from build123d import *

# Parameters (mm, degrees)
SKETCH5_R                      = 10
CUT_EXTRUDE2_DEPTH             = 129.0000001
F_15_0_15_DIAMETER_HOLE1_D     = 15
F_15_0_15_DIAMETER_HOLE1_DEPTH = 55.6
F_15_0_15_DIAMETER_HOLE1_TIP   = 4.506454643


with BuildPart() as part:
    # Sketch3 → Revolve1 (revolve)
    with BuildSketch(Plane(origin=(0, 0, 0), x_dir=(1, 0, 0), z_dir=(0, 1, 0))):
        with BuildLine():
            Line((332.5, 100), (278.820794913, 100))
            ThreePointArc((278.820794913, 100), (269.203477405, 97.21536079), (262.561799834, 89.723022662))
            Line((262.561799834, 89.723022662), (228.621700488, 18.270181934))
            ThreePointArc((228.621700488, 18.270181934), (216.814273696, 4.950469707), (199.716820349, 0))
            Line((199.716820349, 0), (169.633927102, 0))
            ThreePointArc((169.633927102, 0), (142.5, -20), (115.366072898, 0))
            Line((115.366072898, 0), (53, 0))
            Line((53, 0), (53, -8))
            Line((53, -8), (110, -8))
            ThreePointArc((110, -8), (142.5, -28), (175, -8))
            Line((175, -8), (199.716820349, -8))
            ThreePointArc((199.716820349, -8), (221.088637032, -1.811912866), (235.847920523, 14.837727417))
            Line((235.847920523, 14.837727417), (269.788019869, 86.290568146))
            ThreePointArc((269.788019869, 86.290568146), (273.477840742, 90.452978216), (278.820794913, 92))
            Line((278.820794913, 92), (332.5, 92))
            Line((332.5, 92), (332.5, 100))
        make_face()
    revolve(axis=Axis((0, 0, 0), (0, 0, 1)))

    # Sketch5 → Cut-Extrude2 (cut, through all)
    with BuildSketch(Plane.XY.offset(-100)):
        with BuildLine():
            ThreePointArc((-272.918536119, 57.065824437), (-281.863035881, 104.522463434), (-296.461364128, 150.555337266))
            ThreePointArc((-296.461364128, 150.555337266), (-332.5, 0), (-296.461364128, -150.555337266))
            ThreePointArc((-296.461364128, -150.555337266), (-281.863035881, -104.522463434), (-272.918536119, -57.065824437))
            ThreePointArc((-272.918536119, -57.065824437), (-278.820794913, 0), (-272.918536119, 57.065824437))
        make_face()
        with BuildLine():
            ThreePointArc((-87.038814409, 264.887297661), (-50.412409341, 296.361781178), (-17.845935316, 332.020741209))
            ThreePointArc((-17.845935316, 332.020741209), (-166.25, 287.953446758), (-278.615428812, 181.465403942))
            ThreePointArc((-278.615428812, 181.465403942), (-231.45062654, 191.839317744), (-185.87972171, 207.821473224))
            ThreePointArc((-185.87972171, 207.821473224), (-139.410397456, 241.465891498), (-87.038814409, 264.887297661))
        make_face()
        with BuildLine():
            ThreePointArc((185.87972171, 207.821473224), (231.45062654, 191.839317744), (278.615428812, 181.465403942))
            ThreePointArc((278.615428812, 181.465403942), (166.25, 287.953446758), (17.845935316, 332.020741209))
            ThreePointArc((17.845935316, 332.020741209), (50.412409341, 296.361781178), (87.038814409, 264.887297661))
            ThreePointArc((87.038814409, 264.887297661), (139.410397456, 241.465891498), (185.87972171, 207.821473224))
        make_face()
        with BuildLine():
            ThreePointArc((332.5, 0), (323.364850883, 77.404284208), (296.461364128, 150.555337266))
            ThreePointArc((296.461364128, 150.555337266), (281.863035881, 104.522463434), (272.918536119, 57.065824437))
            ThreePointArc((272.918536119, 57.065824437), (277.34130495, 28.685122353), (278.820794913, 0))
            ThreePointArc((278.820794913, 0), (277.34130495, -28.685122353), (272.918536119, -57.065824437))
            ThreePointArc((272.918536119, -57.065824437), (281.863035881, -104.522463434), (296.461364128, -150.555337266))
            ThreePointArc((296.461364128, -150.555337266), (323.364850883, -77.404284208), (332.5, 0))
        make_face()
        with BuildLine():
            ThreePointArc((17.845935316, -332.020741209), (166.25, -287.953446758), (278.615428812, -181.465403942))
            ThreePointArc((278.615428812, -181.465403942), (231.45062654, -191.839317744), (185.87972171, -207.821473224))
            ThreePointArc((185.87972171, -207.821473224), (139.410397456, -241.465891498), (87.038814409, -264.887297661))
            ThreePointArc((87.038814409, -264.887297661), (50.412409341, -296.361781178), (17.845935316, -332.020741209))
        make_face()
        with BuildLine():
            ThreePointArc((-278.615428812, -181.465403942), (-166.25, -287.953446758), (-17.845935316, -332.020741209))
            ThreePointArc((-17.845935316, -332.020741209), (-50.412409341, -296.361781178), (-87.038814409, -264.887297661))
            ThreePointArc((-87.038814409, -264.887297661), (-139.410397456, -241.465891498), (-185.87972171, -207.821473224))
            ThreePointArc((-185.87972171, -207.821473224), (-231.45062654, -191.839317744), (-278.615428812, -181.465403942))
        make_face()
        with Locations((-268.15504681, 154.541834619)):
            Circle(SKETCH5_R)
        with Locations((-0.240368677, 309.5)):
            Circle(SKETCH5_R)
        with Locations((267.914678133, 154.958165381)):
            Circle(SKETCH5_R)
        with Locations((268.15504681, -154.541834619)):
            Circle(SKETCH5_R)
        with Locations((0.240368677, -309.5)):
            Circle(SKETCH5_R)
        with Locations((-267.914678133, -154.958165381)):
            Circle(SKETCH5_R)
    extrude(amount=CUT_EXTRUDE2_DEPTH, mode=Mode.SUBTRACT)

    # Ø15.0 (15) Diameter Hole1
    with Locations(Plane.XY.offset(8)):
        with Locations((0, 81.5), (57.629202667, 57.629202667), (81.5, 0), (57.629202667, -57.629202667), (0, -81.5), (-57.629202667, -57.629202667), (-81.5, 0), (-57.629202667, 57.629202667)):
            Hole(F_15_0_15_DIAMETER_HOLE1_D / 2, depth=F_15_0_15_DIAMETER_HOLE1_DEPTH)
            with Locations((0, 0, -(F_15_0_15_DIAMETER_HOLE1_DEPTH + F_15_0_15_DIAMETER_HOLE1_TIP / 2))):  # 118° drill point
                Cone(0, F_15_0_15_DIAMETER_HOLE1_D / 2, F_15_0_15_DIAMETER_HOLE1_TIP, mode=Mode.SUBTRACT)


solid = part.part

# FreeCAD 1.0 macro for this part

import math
import FreeCAD as App
import Part
import Sketcher

V = App.Vector

doc = App.newDocument("Part")
body = doc.addObject("PartDesign::Body", "Body")

sketch1 = doc.addObject("Sketcher::SketchObject", "Sketch")
body.addObject(sketch1)
sketch1.AttachmentSupport = (doc.XZ_Plane, [""])
sketch1.MapMode = "FlatFace"
sketch1.addGeometry(Part.LineSegment(V(332, -100, 0), V(279, -100, 0)), False)
sketch1.addGeometry(Part.ArcOfCircle(Part.Circle(V(279, -82, 0), V(0, 0, 1), 18), math.radians(-155), math.radians(-90)), False)
sketch1.addGeometry(Part.LineSegment(V(263, -90, 0), V(229, -18, 0)), False)
sketch1.addGeometry(Part.ArcOfCircle(Part.Circle(V(200, -32, 0), V(0, 0, 1), 32), math.radians(25), math.radians(90)), False)
sketch1.addGeometry(Part.LineSegment(V(200, 0, 0), V(170, 0, 0)), False)
sketch1.addGeometry(Part.ArcOfCircle(Part.Circle(V(142, -8, 0), V(0, 0, 1), 28), math.radians(17), math.radians(163)), False)
sketch1.addGeometry(Part.LineSegment(V(115, 0, 0), V(53, 0, 0)), False)
sketch1.addGeometry(Part.LineSegment(V(53, 0, 0), V(53, 8, 0)), False)
sketch1.addGeometry(Part.LineSegment(V(53, 8, 0), V(110, 8, 0)), False)
sketch1.addGeometry(Part.ArcOfCircle(Part.Circle(V(142, -8, 0), V(0, 0, 1), 36), math.radians(27), math.radians(153)), False)
sketch1.addGeometry(Part.LineSegment(V(175, 8, 0), V(200, 8, 0)), False)
sketch1.addGeometry(Part.ArcOfCircle(Part.Circle(V(200, -32, 0), V(0, 0, 1), 40), math.radians(25), math.radians(90)), False)
sketch1.addGeometry(Part.LineSegment(V(236, -15, 0), V(270, -86, 0)), False)
sketch1.addGeometry(Part.ArcOfCircle(Part.Circle(V(279, -82, 0), V(0, 0, 1), 10), math.radians(-155), math.radians(-90)), False)
sketch1.addGeometry(Part.LineSegment(V(279, -92, 0), V(332, -92, 0)), False)
sketch1.addGeometry(Part.LineSegment(V(332, -92, 0), V(332, -100, 0)), False)
sketch1.addConstraint(Sketcher.Constraint("Tangent", 0, 2, 1, 2))
sketch1.addConstraint(Sketcher.Constraint("Tangent", 1, 1, 2, 1))
sketch1.addConstraint(Sketcher.Constraint("Tangent", 2, 2, 3, 1))
sketch1.addConstraint(Sketcher.Constraint("Tangent", 3, 2, 4, 1))
sketch1.addConstraint(Sketcher.Constraint("Coincident", 4, 2, 5, 1))
sketch1.addConstraint(Sketcher.Constraint("Coincident", 5, 2, 6, 1))
sketch1.addConstraint(Sketcher.Constraint("Coincident", 6, 2, 7, 1))
sketch1.addConstraint(Sketcher.Constraint("Coincident", 7, 2, 8, 1))
sketch1.addConstraint(Sketcher.Constraint("Coincident", 8, 2, 9, 2))
sketch1.addConstraint(Sketcher.Constraint("Coincident", 9, 1, 10, 1))
sketch1.addConstraint(Sketcher.Constraint("Tangent", 10, 2, 11, 2))
sketch1.addConstraint(Sketcher.Constraint("Tangent", 11, 1, 12, 1))
sketch1.addConstraint(Sketcher.Constraint("Tangent", 12, 2, 13, 1))
sketch1.addConstraint(Sketcher.Constraint("Tangent", 13, 2, 14, 1))
sketch1.addConstraint(Sketcher.Constraint("Coincident", 14, 2, 15, 1))
sketch1.addConstraint(Sketcher.Constraint("Coincident", 15, 2, 0, 1))
sketch1.addConstraint(Sketcher.Constraint("Horizontal", 0))
sketch1.addConstraint(Sketcher.Constraint("Horizontal", 4))
sketch1.addConstraint(Sketcher.Constraint("Horizontal", 6))
sketch1.addConstraint(Sketcher.Constraint("Vertical", 7))
sketch1.addConstraint(Sketcher.Constraint("Horizontal", 8))
sketch1.addConstraint(Sketcher.Constraint("Horizontal", 10))
sketch1.addConstraint(Sketcher.Constraint("Horizontal", 14))
sketch1.addConstraint(Sketcher.Constraint("Vertical", 15))
sketch1.addConstraint(Sketcher.Constraint("Coincident", 9, 3, 5, 3))
sketch1.addConstraint(Sketcher.Constraint("Coincident", 11, 3, 3, 3))
sketch1.addConstraint(Sketcher.Constraint("Coincident", 13, 3, 1, 3))
sketch1.addConstraint(Sketcher.Constraint("PointOnObject", 3, 2, -1))
sketch1.addConstraint(Sketcher.Constraint("PointOnObject", 5, 2, -1))
sketch1.addConstraint(Sketcher.Constraint("Parallel", 2, 12))
sketch1.addConstraint(Sketcher.Constraint("Horizontal", 8, 2, 9, 1))
sketch1.addConstraint(Sketcher.Constraint("Radius", 1, 18.0))
sketch1.addConstraint(Sketcher.Constraint("Radius", 3, 32.0))
sketch1.addConstraint(Sketcher.Constraint("Radius", 11, 40.0))
sketch1.addConstraint(Sketcher.Constraint("DistanceX", 8, 1, 8, 2, 57.0))
sketch1.addConstraint(Sketcher.Constraint("DistanceY", 1, 3, -1, 1, 82.0))
sketch1.addConstraint(Sketcher.Constraint("DistanceX", -1, 1, 6, 2, 53.0))
sketch1.addConstraint(Sketcher.Constraint("DistanceX", -1, 1, 9, 1, 175.0))
sketch1.addConstraint(Sketcher.Constraint("DistanceX", -1, 1, 14, 2, 332.5))
sketch1.addConstraint(Sketcher.Constraint("Radius", 5, 28.40625))
sketch1.addConstraint(Sketcher.Constraint("Radius", 9, 36.40625))
sketch1.addConstraint(Sketcher.Constraint("DistanceX", 10, 1, 10, 2, 24.71682))
sketch1.addConstraint(Sketcher.Constraint("DistanceX", -1, 1, 1, 1, 262.5618))
revolution = doc.addObject("PartDesign::Revolution", "Revolution")
body.addObject(revolution)
revolution.Profile = sketch1
revolution.ReferenceAxis = (sketch1, ["V_Axis"])
revolution.Angle = 360

sketch2 = doc.addObject("Sketcher::SketchObject", "Sketch001")
body.addObject(sketch2)
sketch2.AttachmentSupport = (doc.XY_Plane, [""])
sketch2.MapMode = "FlatFace"
sketch2.AttachmentOffset = App.Placement(V(0, 0, -100), App.Rotation())
sketch2.addGeometry(Part.ArcOfCircle(Part.Circle(V(-670, 7, 0), V(0, 0, 1), 400), math.radians(7.21), math.radians(21.06)), False)
sketch2.addGeometry(Part.ArcOfCircle(Part.Circle(V(0, 0, 0), V(0, 0, 1), 332), math.radians(153), math.radians(207)), False)
sketch2.addGeometry(Part.ArcOfCircle(Part.Circle(V(-670, -7, 0), V(0, 0, 1), 400), math.radians(-21.06), math.radians(-7.21)), False)
sketch2.addGeometry(Part.ArcOfCircle(Part.Circle(V(0, 0, 0), V(0, 0, 1), 279), math.radians(168), math.radians(192)), False)
sketch2.addGeometry(Part.ArcOfCircle(Part.Circle(V(-329, 583, 0), V(0, 0, 1), 400), math.radians(-52.79), math.radians(-38.94)), False)
sketch2.addGeometry(Part.ArcOfCircle(Part.Circle(V(0, 0, 0), V(0, 0, 1), 333), math.radians(93), math.radians(147)), False)
sketch2.addGeometry(Part.ArcOfCircle(Part.Circle(V(-341, 577, 0), V(0, 0, 1), 400), math.radians(-81.06), math.radians(-67.21)), False)
sketch2.addGeometry(Part.ArcOfCircle(Part.Circle(V(0, 0, 0), V(0, 0, 1), 279), math.radians(108), math.radians(132)), False)
sketch2.addGeometry(Part.ArcOfCircle(Part.Circle(V(341, 577, 0), V(0, 0, 1), 400), math.radians(-112.79), math.radians(-98.94)), False)
sketch2.addGeometry(Part.ArcOfCircle(Part.Circle(V(0, 0, 0), V(0, 0, 1), 333), math.radians(33), math.radians(87)), False)
sketch2.addGeometry(Part.ArcOfCircle(Part.Circle(V(329, 583, 0), V(0, 0, 1), 400), math.radians(-141.06), math.radians(-127.21)), False)
sketch2.addGeometry(Part.ArcOfCircle(Part.Circle(V(0, 0, 0), V(0, 0, 1), 279), math.radians(48), math.radians(72)), False)
sketch2.addGeometry(Part.ArcOfCircle(Part.Circle(V(0, 0, 0), V(0, 0, 1), 332), math.radians(0), math.radians(27)), False)
sketch2.addGeometry(Part.ArcOfCircle(Part.Circle(V(670, 7, 0), V(0, 0, 1), 400), math.radians(158.94), math.radians(172.79)), False)
sketch2.addGeometry(Part.ArcOfCircle(Part.Circle(V(0, 0, 0), V(0, 0, 1), 279), math.radians(0), math.radians(11.81)), False)
sketch2.addGeometry(Part.ArcOfCircle(Part.Circle(V(0, 0, 0), V(0, 0, 1), 279), math.radians(-11.81), math.radians(0)), False)
sketch2.addGeometry(Part.ArcOfCircle(Part.Circle(V(670, -7, 0), V(0, 0, 1), 400), math.radians(-172.79), math.radians(-158.94)), False)
sketch2.addGeometry(Part.ArcOfCircle(Part.Circle(V(0, 0, 0), V(0, 0, 1), 332), math.radians(-27), math.radians(0)), False)
sketch2.addGeometry(Part.ArcOfCircle(Part.Circle(V(0, 0, 0), V(0, 0, 1), 333), math.radians(-87), math.radians(-33)), False)
sketch2.addGeometry(Part.ArcOfCircle(Part.Circle(V(341, -577, 0), V(0, 0, 1), 400), math.radians(98.94), math.radians(112.79)), False)
sketch2.addGeometry(Part.ArcOfCircle(Part.Circle(V(0, 0, 0), V(0, 0, 1), 279), math.radians(-72), math.radians(-48)), False)
sketch2.addGeometry(Part.ArcOfCircle(Part.Circle(V(329, -583, 0), V(0, 0, 1), 400), math.radians(127.21), math.radians(141.06)), False)
sketch2.addGeometry(Part.ArcOfCircle(Part.Circle(V(0, 0, 0), V(0, 0, 1), 333), math.radians(-147), math.radians(-93)), False)
sketch2.addGeometry(Part.ArcOfCircle(Part.Circle(V(-329, -583, 0), V(0, 0, 1), 400), math.radians(38.94), math.radians(52.79)), False)
sketch2.addGeometry(Part.ArcOfCircle(Part.Circle(V(0, 0, 0), V(0, 0, 1), 279), math.radians(-132), math.radians(-108)), False)
sketch2.addGeometry(Part.ArcOfCircle(Part.Circle(V(-341, -577, 0), V(0, 0, 1), 400), math.radians(67.21), math.radians(81.06)), False)
sketch2.addGeometry(Part.Circle(V(-268, 155, 0), V(0, 0, 1), 10), False)
sketch2.addGeometry(Part.Circle(V(0, 310, 0), V(0, 0, 1), 10), False)
sketch2.addGeometry(Part.Circle(V(268, 155, 0), V(0, 0, 1), 10), False)
sketch2.addGeometry(Part.Circle(V(268, -155, 0), V(0, 0, 1), 10), False)
sketch2.addGeometry(Part.Circle(V(0, -310, 0), V(0, 0, 1), 10), False)
sketch2.addGeometry(Part.Circle(V(-268, -155, 0), V(0, 0, 1), 10), False)
sketch2.addConstraint(Sketcher.Constraint("Coincident", 0, 2, 1, 1))
sketch2.addConstraint(Sketcher.Constraint("Coincident", 1, 2, 2, 1))
sketch2.addConstraint(Sketcher.Constraint("Coincident", 2, 2, 3, 2))
sketch2.addConstraint(Sketcher.Constraint("Coincident", 3, 1, 0, 1))
sketch2.addConstraint(Sketcher.Constraint("Coincident", 4, 2, 5, 1))
sketch2.addConstraint(Sketcher.Constraint("Coincident", 5, 2, 6, 1))
sketch2.addConstraint(Sketcher.Constraint("Coincident", 6, 2, 7, 2))
sketch2.addConstraint(Sketcher.Constraint("Coincident", 7, 1, 4, 1))
sketch2.addConstraint(Sketcher.Constraint("Coincident", 8, 2, 9, 1))
sketch2.addConstraint(Sketcher.Constraint("Coincident", 9, 2, 10, 1))
sketch2.addConstraint(Sketcher.Constraint("Coincident", 10, 2, 11, 2))
sketch2.addConstraint(Sketcher.Constraint("Coincident", 11, 1, 8, 1))
sketch2.addConstraint(Sketcher.Constraint("Coincident", 12, 2, 13, 1))
sketch2.addConstraint(Sketcher.Constraint("Coincident", 13, 2, 14, 2))
sketch2.addConstraint(Sketcher.Constraint("Tangent", 14, 1, 15, 2))
sketch2.addConstraint(Sketcher.Constraint("Coincident", 15, 1, 16, 1))
sketch2.addConstraint(Sketcher.Constraint("Coincident", 16, 2, 17, 1))
sketch2.addConstraint(Sketcher.Constraint("Tangent", 17, 2, 12, 1))
sketch2.addConstraint(Sketcher.Constraint("Coincident", 18, 2, 19, 1))
sketch2.addConstraint(Sketcher.Constraint("Coincident", 19, 2, 20, 2))
sketch2.addConstraint(Sketcher.Constraint("Coincident", 20, 1, 21, 1))
sketch2.addConstraint(Sketcher.Constraint("Coincident", 21, 2, 18, 1))
sketch2.addConstraint(Sketcher.Constraint("Coincident", 22, 2, 23, 1))
sketch2.addConstraint(Sketcher.Constraint("Coincident", 23, 2, 24, 2))
sketch2.addConstraint(Sketcher.Constraint("Coincident", 24, 1, 25, 1))
sketch2.addConstraint(Sketcher.Constraint("Coincident", 25, 2, 22, 1))
sketch2.addConstraint(Sketcher.Constraint("Coincident", 1, 3, -1, 1))
sketch2.addConstraint(Sketcher.Constraint("Coincident", 3, 3, -1, 1))
sketch2.addConstraint(Sketcher.Constraint("Coincident", 5, 3, -1, 1))
sketch2.addConstraint(Sketcher.Constraint("Coincident", 7, 3, -1, 1))
sketch2.addConstraint(Sketcher.Constraint("Coincident", 9, 3, -1, 1))
sketch2.addConstraint(Sketcher.Constraint("Coincident", 11, 3, -1, 1))
sketch2.addConstraint(Sketcher.Constraint("Coincident", 12, 3, -1, 1))
sketch2.addConstraint(Sketcher.Constraint("Coincident", 14, 3, -1, 1))
sketch2.addConstraint(Sketcher.Constraint("Coincident", 18, 3, -1, 1))
sketch2.addConstraint(Sketcher.Constraint("Coincident", 20, 3, -1, 1))
sketch2.addConstraint(Sketcher.Constraint("Coincident", 22, 3, -1, 1))
sketch2.addConstraint(Sketcher.Constraint("Coincident", 24, 3, -1, 1))
sketch2.addConstraint(Sketcher.Constraint("Equal", 0, 2))
sketch2.addConstraint(Sketcher.Constraint("Equal", 2, 4))
sketch2.addConstraint(Sketcher.Constraint("Equal", 1, 5))
sketch2.addConstraint(Sketcher.Constraint("Equal", 4, 6))
sketch2.addConstraint(Sketcher.Constraint("Equal", 3, 7))
sketch2.addConstraint(Sketcher.Constraint("Equal", 6, 8))
sketch2.addConstraint(Sketcher.Constraint("Equal", 5, 9))
sketch2.addConstraint(Sketcher.Constraint("Equal", 8, 10))
sketch2.addConstraint(Sketcher.Constraint("Equal", 7, 11))
sketch2.addConstraint(Sketcher.Constraint("Equal", 9, 12))
sketch2.addConstraint(Sketcher.Constraint("Equal", 10, 13))
sketch2.addConstraint(Sketcher.Constraint("Equal", 11, 14))
sketch2.addConstraint(Sketcher.Constraint("Equal", 14, 15))
sketch2.addConstraint(Sketcher.Constraint("Equal", 13, 16))
sketch2.addConstraint(Sketcher.Constraint("Equal", 12, 17))
sketch2.addConstraint(Sketcher.Constraint("Equal", 17, 18))
sketch2.addConstraint(Sketcher.Constraint("Equal", 16, 19))
sketch2.addConstraint(Sketcher.Constraint("Equal", 15, 20))
sketch2.addConstraint(Sketcher.Constraint("Equal", 19, 21))
sketch2.addConstraint(Sketcher.Constraint("Equal", 18, 22))
sketch2.addConstraint(Sketcher.Constraint("Equal", 21, 23))
sketch2.addConstraint(Sketcher.Constraint("Equal", 20, 24))
sketch2.addConstraint(Sketcher.Constraint("Equal", 23, 25))
sketch2.addConstraint(Sketcher.Constraint("Equal", 26, 27))
sketch2.addConstraint(Sketcher.Constraint("Equal", 27, 28))
sketch2.addConstraint(Sketcher.Constraint("Equal", 28, 29))
sketch2.addConstraint(Sketcher.Constraint("Equal", 29, 30))
sketch2.addConstraint(Sketcher.Constraint("Equal", 30, 31))
sketch2.addConstraint(Sketcher.Constraint("Symmetric", 2, 3, 13, 3, -1, 1))
sketch2.addConstraint(Sketcher.Constraint("Symmetric", 0, 3, 16, 3, -1, 1))
sketch2.addConstraint(Sketcher.Constraint("Symmetric", 6, 3, 19, 3, -1, 1))
sketch2.addConstraint(Sketcher.Constraint("Symmetric", 4, 3, 21, 3, -1, 1))
sketch2.addConstraint(Sketcher.Constraint("Symmetric", 10, 3, 23, 3, -1, 1))
sketch2.addConstraint(Sketcher.Constraint("Symmetric", 8, 3, 25, 3, -1, 1))
sketch2.addConstraint(Sketcher.Constraint("Symmetric", 26, 3, 29, 3, -1, 1))
sketch2.addConstraint(Sketcher.Constraint("Symmetric", 27, 3, 30, 3, -1, 1))
sketch2.addConstraint(Sketcher.Constraint("Symmetric", 28, 3, 31, 3, -1, 1))
sketch2.addConstraint(Sketcher.Constraint("Symmetric", 6, 3, 8, 3, -2))
sketch2.addConstraint(Sketcher.Constraint("Symmetric", 4, 3, 10, 3, -2))
sketch2.addConstraint(Sketcher.Constraint("Symmetric", 0, 3, 13, 3, -2))
sketch2.addConstraint(Sketcher.Constraint("PointOnObject", 14, 1, -1))
sketch2.addConstraint(Sketcher.Constraint("PointOnObject", 17, 2, -1))
sketch2.addConstraint(Sketcher.Constraint("Diameter", 26, 20.0))
sketch2.addConstraint(Sketcher.Constraint("Radius", 0, 400.0))
sketch2.addConstraint(Sketcher.Constraint("Radius", 1, 332.5))
sketch2.addConstraint(Sketcher.Constraint("DistanceY", -1, 1, 27, 3, 309.5))
sketch2.addConstraint(Sketcher.Constraint("Radius", 3, 278.820795))
sketch2.addConstraint(Sketcher.Constraint("DistanceX", 6, 3, 4, 3, 11.852001))
sketch2.addConstraint(Sketcher.Constraint("DistanceX", 4, 3, -1, 1, 328.950532))
sketch2.addConstraint(Sketcher.Constraint("DistanceY", -1, 1, 6, 3, 576.601791))
sketch2.addConstraint(Sketcher.Constraint("DistanceX", 27, 3, -1, 1, 0.240369))
sketch2.addConstraint(Sketcher.Constraint("DistanceX", -1, 1, 28, 3, 267.914678))
sketch2.addConstraint(Sketcher.Constraint("DistanceY", 0, 3, 4, 3, 576.601791))
sketch2.addConstraint(Sketcher.Constraint("DistanceX", 0, 3, 6, 3, 328.950532))
sketch2.addConstraint(Sketcher.Constraint("DistanceY", 31, 3, 1, 2, 4.402828))
sketch2.addConstraint(Sketcher.Constraint("DistanceY", 1, 2, 26, 3, 305.097172))
sketch2.addConstraint(Sketcher.Constraint("DistanceX", 2, 2, 26, 3, 4.763489))
sketch2.addConstraint(Sketcher.Constraint("DistanceY", 28, 3, 8, 2, 26.507239))
pocket1 = doc.addObject("PartDesign::Pocket", "Pocket")
body.addObject(pocket1)
pocket1.Profile = sketch2
pocket1.Type = "ThroughAll"
pocket1.Reversed = True

sketch3 = doc.addObject("Sketcher::SketchObject", "Sketch002")
body.addObject(sketch3)
sketch3.AttachmentSupport = (doc.XY_Plane, [""])
sketch3.MapMode = "FlatFace"
sketch3.AttachmentOffset = App.Placement(V(0, 0, 8), App.Rotation())
sketch3.addGeometry(Part.Circle(V(0, 82, 0), V(0, 0, 1), 8), False)
sketch3.addGeometry(Part.Circle(V(58, 58, 0), V(0, 0, 1), 8), False)
sketch3.addGeometry(Part.Circle(V(82, 0, 0), V(0, 0, 1), 8), False)
sketch3.addGeometry(Part.Circle(V(58, -58, 0), V(0, 0, 1), 8), False)
sketch3.addGeometry(Part.Circle(V(0, -82, 0), V(0, 0, 1), 8), False)
sketch3.addGeometry(Part.Circle(V(-58, -58, 0), V(0, 0, 1), 8), False)
sketch3.addGeometry(Part.Circle(V(-82, 0, 0), V(0, 0, 1), 8), False)
sketch3.addGeometry(Part.Circle(V(-58, 58, 0), V(0, 0, 1), 8), False)
sketch3.addConstraint(Sketcher.Constraint("Equal", 0, 1))
sketch3.addConstraint(Sketcher.Constraint("Equal", 1, 2))
sketch3.addConstraint(Sketcher.Constraint("Equal", 2, 3))
sketch3.addConstraint(Sketcher.Constraint("Equal", 3, 4))
sketch3.addConstraint(Sketcher.Constraint("Equal", 4, 5))
sketch3.addConstraint(Sketcher.Constraint("Equal", 5, 6))
sketch3.addConstraint(Sketcher.Constraint("Equal", 6, 7))
sketch3.addConstraint(Sketcher.Constraint("Symmetric", 0, 3, 4, 3, -1, 1))
sketch3.addConstraint(Sketcher.Constraint("Symmetric", 1, 3, 5, 3, -1, 1))
sketch3.addConstraint(Sketcher.Constraint("Symmetric", 2, 3, 6, 3, -1, 1))
sketch3.addConstraint(Sketcher.Constraint("Symmetric", 3, 3, 7, 3, -1, 1))
sketch3.addConstraint(Sketcher.Constraint("Symmetric", 3, 3, 5, 3, -2))
sketch3.addConstraint(Sketcher.Constraint("PointOnObject", 0, 3, -2))
sketch3.addConstraint(Sketcher.Constraint("PointOnObject", 2, 3, -1))
sketch3.addConstraint(Sketcher.Constraint("Diameter", 0, 15.0))
sketch3.addConstraint(Sketcher.Constraint("DistanceY", 4, 3, 0, 3, 163.0))
sketch3.addConstraint(Sketcher.Constraint("DistanceX", -1, 1, 2, 3, 81.5))
sketch3.addConstraint(Sketcher.Constraint("DistanceX", -1, 1, 1, 3, 57.629203))
sketch3.addConstraint(Sketcher.Constraint("DistanceY", -1, 1, 1, 3, 57.629203))
doc.recompute()
hole = doc.addObject("PartDesign::Hole", "Hole")
body.addObject(hole)
hole.Profile = sketch3
hole.ThreadType = "None"
hole.Diameter = 15
hole.DepthType = "Dimension"
hole.Depth = 55.6
hole.DrillPoint = "Angled"
hole.DrillPointAngle = 118

doc.recompute()
